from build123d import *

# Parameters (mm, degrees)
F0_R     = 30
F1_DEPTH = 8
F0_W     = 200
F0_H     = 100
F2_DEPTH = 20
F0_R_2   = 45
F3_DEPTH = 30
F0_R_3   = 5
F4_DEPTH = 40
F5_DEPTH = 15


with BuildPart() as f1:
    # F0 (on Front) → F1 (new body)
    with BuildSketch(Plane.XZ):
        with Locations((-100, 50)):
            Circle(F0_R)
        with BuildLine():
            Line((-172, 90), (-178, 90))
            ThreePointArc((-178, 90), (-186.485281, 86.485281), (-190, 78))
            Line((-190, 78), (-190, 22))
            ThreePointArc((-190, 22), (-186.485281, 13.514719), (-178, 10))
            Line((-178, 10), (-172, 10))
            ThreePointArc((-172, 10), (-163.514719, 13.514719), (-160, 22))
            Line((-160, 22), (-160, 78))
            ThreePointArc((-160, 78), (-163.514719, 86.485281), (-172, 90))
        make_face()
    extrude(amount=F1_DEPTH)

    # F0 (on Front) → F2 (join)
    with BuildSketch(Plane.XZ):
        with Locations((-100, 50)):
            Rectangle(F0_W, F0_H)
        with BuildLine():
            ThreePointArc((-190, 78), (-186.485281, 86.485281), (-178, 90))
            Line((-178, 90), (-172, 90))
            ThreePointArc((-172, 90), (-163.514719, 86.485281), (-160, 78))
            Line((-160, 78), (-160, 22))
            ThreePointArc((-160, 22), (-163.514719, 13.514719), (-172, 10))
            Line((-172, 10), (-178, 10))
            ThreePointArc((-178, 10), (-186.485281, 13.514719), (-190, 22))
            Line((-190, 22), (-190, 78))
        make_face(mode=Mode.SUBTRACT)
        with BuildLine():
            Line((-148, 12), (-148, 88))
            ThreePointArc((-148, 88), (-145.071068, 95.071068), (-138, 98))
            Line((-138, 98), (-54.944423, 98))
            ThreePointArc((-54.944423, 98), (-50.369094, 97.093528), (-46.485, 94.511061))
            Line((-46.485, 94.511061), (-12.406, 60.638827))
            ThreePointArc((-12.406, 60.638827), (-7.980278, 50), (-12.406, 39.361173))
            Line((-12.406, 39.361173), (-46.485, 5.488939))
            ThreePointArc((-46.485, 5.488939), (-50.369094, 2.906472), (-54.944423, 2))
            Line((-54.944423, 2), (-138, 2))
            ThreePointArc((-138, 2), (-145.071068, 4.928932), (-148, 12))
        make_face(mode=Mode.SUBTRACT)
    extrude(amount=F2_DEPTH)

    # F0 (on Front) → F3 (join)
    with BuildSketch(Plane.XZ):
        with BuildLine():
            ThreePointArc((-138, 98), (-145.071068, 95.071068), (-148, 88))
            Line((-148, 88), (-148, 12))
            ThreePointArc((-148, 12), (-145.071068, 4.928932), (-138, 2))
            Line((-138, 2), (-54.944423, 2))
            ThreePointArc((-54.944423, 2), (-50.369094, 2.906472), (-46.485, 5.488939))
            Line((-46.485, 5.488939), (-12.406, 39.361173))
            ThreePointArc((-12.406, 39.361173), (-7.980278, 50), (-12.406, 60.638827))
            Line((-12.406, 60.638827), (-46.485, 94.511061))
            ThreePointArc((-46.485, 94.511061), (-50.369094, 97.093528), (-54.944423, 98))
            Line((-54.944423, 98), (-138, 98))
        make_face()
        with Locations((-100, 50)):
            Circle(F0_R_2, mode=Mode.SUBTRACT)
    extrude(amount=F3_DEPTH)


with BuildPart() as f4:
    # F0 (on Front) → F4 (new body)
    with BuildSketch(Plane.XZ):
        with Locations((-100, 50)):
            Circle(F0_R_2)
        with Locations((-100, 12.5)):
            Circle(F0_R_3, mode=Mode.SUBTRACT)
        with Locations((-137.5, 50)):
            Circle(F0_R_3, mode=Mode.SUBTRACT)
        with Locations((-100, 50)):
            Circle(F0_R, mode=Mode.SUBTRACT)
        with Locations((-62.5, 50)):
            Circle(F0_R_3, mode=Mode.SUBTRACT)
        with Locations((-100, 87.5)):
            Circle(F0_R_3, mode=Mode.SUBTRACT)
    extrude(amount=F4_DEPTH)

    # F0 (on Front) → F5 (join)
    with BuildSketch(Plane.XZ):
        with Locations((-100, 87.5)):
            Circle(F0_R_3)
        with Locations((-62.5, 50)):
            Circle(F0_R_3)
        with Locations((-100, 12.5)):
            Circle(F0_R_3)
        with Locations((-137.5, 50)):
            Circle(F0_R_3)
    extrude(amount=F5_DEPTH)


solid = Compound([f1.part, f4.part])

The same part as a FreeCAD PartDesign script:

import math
import FreeCAD as App
import Part
import Sketcher
from FreeCAD import Vector
Q = App.Units.Quantity

doc = App.newDocument("Part")
body = doc.addObject("PartDesign::Body", "Body")
body.AllowCompound = True

# Sketch on XZ plane
sketch1 = body.newObject("Sketcher::SketchObject", "Sketch")
sketch1.AttachmentSupport = (doc.getObject("XZ_Plane"), [""])
sketch1.MapMode = "FlatFace"
sketch1.addGeometry([
    Part.Circle(Vector(-100, 50, 0), Vector(0, 0, 1), 30),  # 0
    Part.LineSegment(Vector(-172, 90, 0), Vector(-178, 90, 0)),  # 1
    Part.ArcOfCircle(Part.Circle(Vector(-178, 78, 0), Vector(0, 0, 1), 12), math.radians(90), math.radians(180)),  # 2
    Part.LineSegment(Vector(-190, 78, 0), Vector(-190, 22, 0)),  # 3
    Part.ArcOfCircle(Part.Circle(Vector(-178, 22, 0), Vector(0, 0, 1), 12), math.radians(-180), math.radians(-90)),  # 4
    Part.LineSegment(Vector(-178, 10, 0), Vector(-172, 10, 0)),  # 5
    Part.ArcOfCircle(Part.Circle(Vector(-172, 22, 0), Vector(0, 0, 1), 12), math.radians(-90), math.radians(0)),  # 6
    Part.LineSegment(Vector(-160, 22, 0), Vector(-160, 78, 0)),  # 7
    Part.ArcOfCircle(Part.Circle(Vector(-172, 78, 0), Vector(0, 0, 1), 12), math.radians(0), math.radians(90)),  # 8
], False)
sketch1.addConstraint([
    Sketcher.Constraint("Tangent", 1, 2, 2, 1),
    Sketcher.Constraint("Tangent", 2, 2, 3, 1),
    Sketcher.Constraint("Tangent", 3, 2, 4, 1),
    Sketcher.Constraint("Tangent", 4, 2, 5, 1),
    Sketcher.Constraint("Tangent", 5, 2, 6, 1),
    Sketcher.Constraint("Tangent", 6, 2, 7, 1),
    Sketcher.Constraint("Tangent", 7, 2, 8, 1),
    Sketcher.Constraint("Tangent", 8, 2, 1, 1),
    Sketcher.Constraint("Horizontal", 1),
    Sketcher.Constraint("Vertical", 3),
    Sketcher.Constraint("Horizontal", 5),
    Sketcher.Constraint("Vertical", 7),
    Sketcher.Constraint("Equal", 2, 4),
    Sketcher.Constraint("Equal", 4, 6),
    Sketcher.Constraint("Equal", 6, 8),
    Sketcher.Constraint("Diameter", 0, Q("60 mm")),
    Sketcher.Constraint("Radius", 2, Q("12.000001 mm")),
    Sketcher.Constraint("DistanceX", 1, 2, 1, 1, Q("6 mm")),
    Sketcher.Constraint("DistanceY", 3, 2, 3, 1, Q("56 mm")),
    Sketcher.Constraint("DistanceX", 0, 3, -1, 1, Q("100 mm")),
    Sketcher.Constraint("DistanceY", -1, 1, 0, 3, Q("50 mm")),
    Sketcher.Constraint("DistanceX", 2, 3, -1, 1, Q("177.999999 mm")),
    Sketcher.Constraint("DistanceY", -1, 1, 2, 3, Q("77.999999 mm")),
])
pad1 = body.newObject("PartDesign::Pad", "Pad")
pad1.Profile = sketch1
pad1.Length = 8

# Sketch on XZ plane
sketch2 = body.newObject("Sketcher::SketchObject", "Sketch001")
sketch2.AttachmentSupport = (doc.getObject("XZ_Plane"), [""])
sketch2.MapMode = "FlatFace"
sketch2.addGeometry([
    Part.LineSegment(Vector(-200, 100, 0), Vector(-200, 0, 0)),  # 0
    Part.LineSegment(Vector(-200, 0, 0), Vector(0, 0, 0)),  # 1
    Part.LineSegment(Vector(0, 0, 0), Vector(0, 100, 0)),  # 2
    Part.LineSegment(Vector(0, 100, 0), Vector(-200, 100, 0)),  # 3
    Part.LineSegment(Vector(-190, 22, 0), Vector(-190, 78, 0)),  # 4
    Part.ArcOfCircle(Part.Circle(Vector(-178, 78, 0), Vector(0, 0, 1), 12), math.radians(90), math.radians(180)),  # 5
    Part.LineSegment(Vector(-178, 90, 0), Vector(-172, 90, 0)),  # 6
    Part.ArcOfCircle(Part.Circle(Vector(-172, 78, 0), Vector(0, 0, 1), 12), math.radians(0), math.radians(90)),  # 7
    Part.LineSegment(Vector(-160, 78, 0), Vector(-160, 22, 0)),  # 8
    Part.ArcOfCircle(Part.Circle(Vector(-172, 22, 0), Vector(0, 0, 1), 12), math.radians(-90), math.radians(0)),  # 9
    Part.LineSegment(Vector(-172, 10, 0), Vector(-178, 10, 0)),  # 10
    Part.ArcOfCircle(Part.Circle(Vector(-178, 22, 0), Vector(0, 0, 1), 12), math.radians(-180), math.radians(-90)),  # 11
    Part.ArcOfCircle(Part.Circle(Vector(-138, 12, 0), Vector(0, 0, 1), 10), math.radians(180), math.radians(270)),  # 12
    Part.LineSegment(Vector(-148, 12, 0), Vector(-148, 88, 0)),  # 13
    Part.ArcOfCircle(Part.Circle(Vector(-138, 88, 0), Vector(0, 0, 1), 10), math.radians(90), math.radians(180)),  # 14
    Part.LineSegment(Vector(-138, 98, 0), Vector(-55, 98, 0)),  # 15
    Part.ArcOfCircle(Part.Circle(Vector(-55, 86, 0), Vector(0, 0, 1), 12), math.radians(45), math.radians(90)),  # 16
    Part.LineSegment(Vector(-46, 95, 0), Vector(-12, 61, 0)),  # 17
    Part.ArcOfCircle(Part.Circle(Vector(-23, 50, 0), Vector(0, 0, 1), 15), math.radians(-45), math.radians(45)),  # 18
    Part.LineSegment(Vector(-12, 39, 0), Vector(-46, 5, 0)),  # 19
    Part.ArcOfCircle(Part.Circle(Vector(-55, 14, 0), Vector(0, 0, 1), 12), math.radians(-90), math.radians(-45)),  # 20
    Part.LineSegment(Vector(-55, 2, 0), Vector(-138, 2, 0)),  # 21
], False)
sketch2.addConstraint([
    Sketcher.Constraint("Coincident", 0, 2, 1, 1),
    Sketcher.Constraint("Coincident", 1, 2, 2, 1),
    Sketcher.Constraint("Coincident", 2, 2, 3, 1),
    Sketcher.Constraint("Coincident", 3, 2, 0, 1),
    Sketcher.Constraint("Tangent", 4, 2, 5, 2),
    Sketcher.Constraint("Tangent", 5, 1, 6, 1),
    Sketcher.Constraint("Tangent", 6, 2, 7, 2),
    Sketcher.Constraint("Tangent", 7, 1, 8, 1),
    Sketcher.Constraint("Tangent", 8, 2, 9, 2),
    Sketcher.Constraint("Tangent", 9, 1, 10, 1),
    Sketcher.Constraint("Tangent", 10, 2, 11, 2),
    Sketcher.Constraint("Tangent", 11, 1, 4, 1),
    Sketcher.Constraint("Tangent", 12, 1, 13, 1),
    Sketcher.Constraint("Tangent", 13, 2, 14, 2),
    Sketcher.Constraint("Tangent", 14, 1, 15, 1),
    Sketcher.Constraint("Tangent", 15, 2, 16, 2),
    Sketcher.Constraint("Tangent", 16, 1, 17, 1),
    Sketcher.Constraint("Tangent", 17, 2, 18, 2),
    Sketcher.Constraint("Tangent", 18, 1, 19, 1),
    Sketcher.Constraint("Tangent", 19, 2, 20, 2),
    Sketcher.Constraint("Tangent", 20, 1, 21, 1),
    Sketcher.Constraint("Tangent", 21, 2, 12, 2),
    Sketcher.Constraint("Vertical", 0),
    Sketcher.Constraint("Horizontal", 1),
    Sketcher.Constraint("Vertical", 2),
    Sketcher.Constraint("Horizontal", 3),
    Sketcher.Constraint("Vertical", 4),
    Sketcher.Constraint("Horizontal", 6),
    Sketcher.Constraint("Vertical", 8),
    Sketcher.Constraint("Horizontal", 10),
    Sketcher.Constraint("Vertical", 13),
    Sketcher.Constraint("Horizontal", 15),
    Sketcher.Constraint("Horizontal", 21),
    Sketcher.Constraint("Coincident", 1, 2, -1, 1),
    Sketcher.Constraint("Equal", 5, 7),
    Sketcher.Constraint("Equal", 7, 9),
    Sketcher.Constraint("Equal", 9, 11),
    Sketcher.Constraint("Equal", 12, 14),
    Sketcher.Constraint("Equal", 11, 16),
    Sketcher.Constraint("Equal", 16, 20),
    Sketcher.Constraint("Vertical", 16, 3, 20, 3),
    Sketcher.Constraint("Vertical", 17, 2, 18, 1),
    Sketcher.Constraint("Radius", 5, Q("12.000001 mm")),
    Sketcher.Constraint("Radius", 12, Q("9.999999 mm")),
    Sketcher.Constraint("Radius", 18, Q("14.999999 mm")),
    Sketcher.Constraint("DistanceX", 1, 1, 1, 2, Q("200 mm")),
    Sketcher.Constraint("DistanceX", 6, 1, 6, 2, Q("6 mm")),
    Sketcher.Constraint("DistanceY", 0, 2, 0, 1, Q("100 mm")),
    Sketcher.Constraint("DistanceY", 4, 1, 4, 2, Q("56 mm")),
    Sketcher.Constraint("DistanceY", 13, 1, 13, 2, Q("76 mm")),
    Sketcher.Constraint("DistanceX", 5, 3, -1, 1, Q("177.999999 mm")),
    Sketcher.Constraint("DistanceY", -1, 1, 5, 3, Q("77.999999 mm")),
    Sketcher.Constraint("DistanceX", 12, 3, -1, 1, Q("138.000001 mm")),
    Sketcher.Constraint("DistanceY", -1, 1, 12, 3, Q("11.999999 mm")),
    Sketcher.Constraint("Distance", 17, Q("48.049001 mm")),
    Sketcher.Constraint("DistanceX", 16, 1, -1, 1, Q("46.485 mm")),
])
pad2 = body.newObject("PartDesign::Pad", "Pad001")
pad2.Profile = sketch2
pad2.Length = 20

# Sketch on XZ plane
sketch3 = body.newObject("Sketcher::SketchObject", "Sketch002")
sketch3.AttachmentSupport = (doc.getObject("XZ_Plane"), [""])
sketch3.MapMode = "FlatFace"
sketch3.addGeometry([
    Part.ArcOfCircle(Part.Circle(Vector(-138, 88, 0), Vector(0, 0, 1), 10), math.radians(90), math.radians(180)),  # 0
    Part.LineSegment(Vector(-148, 88, 0), Vector(-148, 12, 0)),  # 1
    Part.ArcOfCircle(Part.Circle(Vector(-138, 12, 0), Vector(0, 0, 1), 10), math.radians(180), math.radians(270)),  # 2
    Part.LineSegment(Vector(-138, 2, 0), Vector(-55, 2, 0)),  # 3
    Part.ArcOfCircle(Part.Circle(Vector(-55, 14, 0), Vector(0, 0, 1), 12), math.radians(-90), math.radians(-45)),  # 4
    Part.LineSegment(Vector(-46, 5, 0), Vector(-12, 39, 0)),  # 5
    Part.ArcOfCircle(Part.Circle(Vector(-23, 50, 0), Vector(0, 0, 1), 15), math.radians(-45), math.radians(45)),  # 6
    Part.LineSegment(Vector(-12, 61, 0), Vector(-46, 95, 0)),  # 7
    Part.ArcOfCircle(Part.Circle(Vector(-55, 86, 0), Vector(0, 0, 1), 12), math.radians(45), math.radians(90)),  # 8
    Part.LineSegment(Vector(-55, 98, 0), Vector(-138, 98, 0)),  # 9
    Part.Circle(Vector(-100, 50, 0), Vector(0, 0, 1), 45),  # 10
], False)
sketch3.addConstraint([
    Sketcher.Constraint("Tangent", 0, 2, 1, 1),
    Sketcher.Constraint("Tangent", 1, 2, 2, 1),
    Sketcher.Constraint("Tangent", 2, 2, 3, 1),
    Sketcher.Constraint("Tangent", 3, 2, 4, 1),
    Sketcher.Constraint("Tangent", 4, 2, 5, 1),
    Sketcher.Constraint("Tangent", 5, 2, 6, 1),
    Sketcher.Constraint("Tangent", 6, 2, 7, 1),
    Sketcher.Constraint("Tangent", 7, 2, 8, 1),
    Sketcher.Constraint("Tangent", 8, 2, 9, 1),
    Sketcher.Constraint("Tangent", 9, 2, 0, 1),
    Sketcher.Constraint("Vertical", 1),
    Sketcher.Constraint("Horizontal", 3),
    Sketcher.Constraint("Horizontal", 9),
    Sketcher.Constraint("Equal", 0, 2),
    Sketcher.Constraint("Equal", 4, 8),
    Sketcher.Constraint("Horizontal", 6, 3, 10, 3),
    Sketcher.Constraint("Vertical", 4, 3, 8, 3),
    Sketcher.Constraint("Vertical", 5, 2, 6, 2),
    Sketcher.Constraint("Diameter", 10, Q("90 mm")),
    Sketcher.Constraint("Radius", 0, Q("9.999999 mm")),
    Sketcher.Constraint("Radius", 4, Q("12 mm")),
    Sketcher.Constraint("Radius", 6, Q("14.999999 mm")),
    Sketcher.Constraint("DistanceY", 1, 2, 1, 1, Q("76 mm")),
    Sketcher.Constraint("DistanceX", 0, 3, -1, 1, Q("138.000001 mm")),
    Sketcher.Constraint("DistanceY", -1, 1, 0, 3, Q("88.000001 mm")),
    Sketcher.Constraint("DistanceX", 10, 3, -1, 1, Q("100 mm")),
    Sketcher.Constraint("Distance", 5, Q("48.049001 mm")),
    Sketcher.Constraint("DistanceX", 4, 2, -1, 1, Q("46.485 mm")),
])
pad3 = body.newObject("PartDesign::Pad", "Pad002")
pad3.Profile = sketch3
pad3.Length = 30
body2 = doc.addObject("PartDesign::Body", "Body001")

# Sketch on XZ plane
sketch4 = body2.newObject("Sketcher::SketchObject", "Sketch003")
sketch4.AttachmentSupport = (doc.getObject("XZ_Plane001"), [""])
sketch4.MapMode = "FlatFace"
sketch4.addGeometry([
    Part.Circle(Vector(-100, 50, 0), Vector(0, 0, 1), 45),  # 0
    Part.Circle(Vector(-100, 12, 0), Vector(0, 0, 1), 5),  # 1
    Part.Circle(Vector(-138, 50, 0), Vector(0, 0, 1), 5),  # 2
    Part.Circle(Vector(-100, 50, 0), Vector(0, 0, 1), 30),  # 3
    Part.Circle(Vector(-62, 50, 0), Vector(0, 0, 1), 5),  # 4
    Part.Circle(Vector(-100, 88, 0), Vector(0, 0, 1), 5),  # 5
], False)
sketch4.addConstraint([
    Sketcher.Constraint("Coincident", 3, 3, 0, 3),
    Sketcher.Constraint("Equal", 1, 2),
    Sketcher.Constraint("Equal", 2, 4),
    Sketcher.Constraint("Equal", 4, 5),
    Sketcher.Constraint("Horizontal", 0, 3, 2, 3),
    Sketcher.Constraint("Horizontal", 3, 3, 4, 3),
    Sketcher.Constraint("Vertical", 0, 3, 1, 3),
    Sketcher.Constraint("Vertical", 3, 3, 5, 3),
    Sketcher.Constraint("Diameter", 0, Q("90 mm")),
    Sketcher.Constraint("Diameter", 1, Q("10 mm")),
    Sketcher.Constraint("Diameter", 3, Q("60 mm")),
    Sketcher.Constraint("DistanceX", 0, 3, -1, 1, Q("100 mm")),
    Sketcher.Constraint("DistanceY", -1, 1, 0, 3, Q("50 mm")),
    Sketcher.Constraint("DistanceX", 2, 3, 4, 3, Q("75 mm")),
    Sketcher.Constraint("DistanceY", 1, 3, 5, 3, Q("75 mm")),
    Sketcher.Constraint("DistanceY", -1, 1, 1, 3, Q("12.5 mm")),
    Sketcher.Constraint("DistanceX", 2, 3, -1, 1, Q("137.5 mm")),
])
pad4 = body2.newObject("PartDesign::Pad", "Pad003")
pad4.Profile = sketch4
pad4.Length = 40

# Sketch on XZ plane
sketch5 = body2.newObject("Sketcher::SketchObject", "Sketch004")
sketch5.AttachmentSupport = (doc.getObject("XZ_Plane001"), [""])
sketch5.MapMode = "FlatFace"
sketch5.addGeometry([
    Part.Circle(Vector(-100, 88, 0), Vector(0, 0, 1), 5),
    Part.Circle(Vector(-62, 50, 0), Vector(0, 0, 1), 5),
    Part.Circle(Vector(-100, 12, 0), Vector(0, 0, 1), 5),
    Part.Circle(Vector(-138, 50, 0), Vector(0, 0, 1), 5),
], False)
sketch5.addConstraint([
    Sketcher.Constraint("Equal", 0, 1),
    Sketcher.Constraint("Equal", 1, 2),
    Sketcher.Constraint("Equal", 2, 3),
    Sketcher.Constraint("Horizontal", 1, 3, 3, 3),
    Sketcher.Constraint("Vertical", 0, 3, 2, 3),
    Sketcher.Constraint("Diameter", 0, Q("10 mm")),
    Sketcher.Constraint("DistanceX", 0, 3, -1, 1, Q("100 mm")),
    Sketcher.Constraint("DistanceY", -1, 1, 1, 3, Q("50 mm")),
    Sketcher.Constraint("DistanceY", 2, 3, 0, 3, Q("75 mm")),
    Sketcher.Constraint("DistanceX", 3, 3, 1, 3, Q("75 mm")),
    Sketcher.Constraint("DistanceY", -1, 1, 0, 3, Q("87.5 mm")),
    Sketcher.Constraint("DistanceX", 1, 3, -1, 1, Q("62.5 mm")),
])
pad5 = body2.newObject("PartDesign::Pad", "Pad004")
pad5.Profile = sketch5
pad5.Length = 15

doc.recompute()
